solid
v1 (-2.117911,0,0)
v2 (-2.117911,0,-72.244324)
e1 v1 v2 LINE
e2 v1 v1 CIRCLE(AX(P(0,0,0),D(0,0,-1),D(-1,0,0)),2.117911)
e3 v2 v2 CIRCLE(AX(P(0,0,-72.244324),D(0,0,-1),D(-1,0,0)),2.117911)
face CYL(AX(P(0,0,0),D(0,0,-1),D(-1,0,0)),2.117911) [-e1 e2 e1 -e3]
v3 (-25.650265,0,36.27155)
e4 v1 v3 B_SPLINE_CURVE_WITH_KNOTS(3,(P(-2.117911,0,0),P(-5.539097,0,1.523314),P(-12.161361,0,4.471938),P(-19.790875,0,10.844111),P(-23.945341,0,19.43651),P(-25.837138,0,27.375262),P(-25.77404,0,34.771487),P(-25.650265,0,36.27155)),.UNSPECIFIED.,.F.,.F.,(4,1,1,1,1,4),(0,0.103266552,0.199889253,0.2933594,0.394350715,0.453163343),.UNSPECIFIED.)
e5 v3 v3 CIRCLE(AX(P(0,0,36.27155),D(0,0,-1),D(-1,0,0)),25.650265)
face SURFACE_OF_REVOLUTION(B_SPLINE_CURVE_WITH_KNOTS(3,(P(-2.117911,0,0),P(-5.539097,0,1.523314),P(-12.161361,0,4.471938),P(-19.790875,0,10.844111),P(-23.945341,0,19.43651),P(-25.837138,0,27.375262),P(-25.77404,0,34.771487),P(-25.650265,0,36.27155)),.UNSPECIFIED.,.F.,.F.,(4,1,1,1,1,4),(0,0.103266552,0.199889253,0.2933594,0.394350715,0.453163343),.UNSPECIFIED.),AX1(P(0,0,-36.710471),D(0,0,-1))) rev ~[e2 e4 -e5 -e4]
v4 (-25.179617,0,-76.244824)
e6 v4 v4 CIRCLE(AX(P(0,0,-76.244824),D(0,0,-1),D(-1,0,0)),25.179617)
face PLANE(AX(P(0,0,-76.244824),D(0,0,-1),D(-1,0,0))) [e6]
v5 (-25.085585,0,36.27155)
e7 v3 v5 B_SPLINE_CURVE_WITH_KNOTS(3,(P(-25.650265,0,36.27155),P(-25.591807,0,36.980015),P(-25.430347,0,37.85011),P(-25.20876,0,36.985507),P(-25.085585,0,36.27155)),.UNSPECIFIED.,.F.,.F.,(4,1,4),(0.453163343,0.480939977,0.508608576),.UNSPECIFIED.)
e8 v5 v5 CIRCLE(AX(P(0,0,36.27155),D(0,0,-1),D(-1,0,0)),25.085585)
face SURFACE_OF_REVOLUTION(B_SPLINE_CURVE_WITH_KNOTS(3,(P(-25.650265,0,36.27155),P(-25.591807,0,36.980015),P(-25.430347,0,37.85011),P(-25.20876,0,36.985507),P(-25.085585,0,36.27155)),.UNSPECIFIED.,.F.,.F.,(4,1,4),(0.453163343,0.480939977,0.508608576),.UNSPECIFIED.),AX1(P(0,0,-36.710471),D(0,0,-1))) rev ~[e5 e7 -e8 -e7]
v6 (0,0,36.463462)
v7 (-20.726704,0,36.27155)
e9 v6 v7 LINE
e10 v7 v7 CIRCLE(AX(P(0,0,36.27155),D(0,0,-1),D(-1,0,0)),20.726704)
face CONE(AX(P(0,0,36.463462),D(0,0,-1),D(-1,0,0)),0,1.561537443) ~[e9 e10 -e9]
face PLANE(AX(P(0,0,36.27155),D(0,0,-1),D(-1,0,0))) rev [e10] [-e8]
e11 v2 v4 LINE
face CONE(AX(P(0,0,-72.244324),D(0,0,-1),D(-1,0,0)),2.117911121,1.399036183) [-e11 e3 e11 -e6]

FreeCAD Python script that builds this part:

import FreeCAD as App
import Part
import Sketcher
from FreeCAD import Vector

doc = App.newDocument("Part")
body = doc.addObject("PartDesign::Body", "Body")

# Sketch on XZ plane
sketch1 = body.newObject("Sketcher::SketchObject", "Sketch")
sketch1.AttachmentSupport = (doc.getObject("XZ_Plane"), [""])
sketch1.MapMode = "FlatFace"
sketch1.addGeometry(Part.LineSegment(Vector(-25.179617, -76.244824, 0), Vector(0, -76.244824, 0)), False)
sketch1.addGeometry(Part.LineSegment(Vector(0, -76.244824, 0), Vector(0, 36.27155, 0)), False)
sketch1.addGeometry(Part.LineSegment(Vector(0, 36.27155, 0), Vector(-25.085585, 36.27155, 0)), False)
sketch1.addGeometry(Part.BSplineCurve([Vector(-25.650265, 36.27155, 0), Vector(-25.591807, 36.980015, 0), Vector(-25.430347, 37.85011, 0), Vector(-25.20876, 36.985507, 0), Vector(-25.085585, 36.27155, 0)], [4, 1, 4], [0.453163343, 0.480939977, 0.508608576], False, 3, [1, 1, 1, 1, 1], False), False)
sketch1.addGeometry(Part.BSplineCurve([Vector(-2.117911, 0, 0), Vector(-5.539097, 1.523314, 0), Vector(-12.161361, 4.471938, 0), Vector(-19.790875, 10.844111, 0), Vector(-23.945341, 19.43651, 0), Vector(-25.837138, 27.375262, 0), Vector(-25.77404, 34.771487, 0), Vector(-25.650265, 36.27155, 0)], [4, 1, 1, 1, 1, 4], [0, 0.103266552, 0.199889253, 0.2933594, 0.394350715, 0.453163343], False, 3, [1, 1, 1, 1, 1, 1, 1, 1], False), False)
sketch1.addGeometry(Part.LineSegment(Vector(-2.117911, 0, 0), Vector(-2.117911, -72.244324, 0)), False)
sketch1.addGeometry(Part.LineSegment(Vector(-2.117911, -72.244324, 0), Vector(-25.179617, -76.244824, 0)), False)
sketch1.addConstraint(Sketcher.Constraint("Block", 3))
sketch1.addConstraint(Sketcher.Constraint("Block", 4))
sketch1.addConstraint(Sketcher.Constraint("Coincident", 0, 2, 1, 1))
sketch1.addConstraint(Sketcher.Constraint("Coincident", 1, 2, 2, 1))
sketch1.addConstraint(Sketcher.Constraint("Coincident", 2, 2, 3, 2))
sketch1.addConstraint(Sketcher.Constraint("Coincident", 4, 1, 5, 1))
sketch1.addConstraint(Sketcher.Constraint("Coincident", 5, 2, 6, 1))
sketch1.addConstraint(Sketcher.Constraint("Coincident", 6, 2, 0, 1))
sketch1.addConstraint(Sketcher.Constraint("Horizontal", 0))
sketch1.addConstraint(Sketcher.Constraint("Vertical", 1))
sketch1.addConstraint(Sketcher.Constraint("Horizontal", 2))
sketch1.addConstraint(Sketcher.Constraint("Vertical", 5))
sketch1.addConstraint(Sketcher.Constraint("PointOnObject", 0, 2, -2))
sketch1.addConstraint(Sketcher.Constraint("DistanceY", 0, 2, 5, 2, 4.0005))
sketch1.addConstraint(Sketcher.Constraint("DistanceX", 0, 1, 0, 2, 25.179617))
sketch1.addConstraint(Sketcher.Constraint("DistanceY", 1, 1, 1, 2, 112.516374))
revolution = body.newObject("PartDesign::Revolution", "Revolution")
revolution.Profile = sketch1
revolution.ReferenceAxis = (sketch1, ["V_Axis"])
revolution.Angle = 360

# Sketch on XZ plane
sketch2 = body.newObject("Sketcher::SketchObject", "Sketch001")
sketch2.AttachmentSupport = (doc.getObject("XZ_Plane"), [""])
sketch2.MapMode = "FlatFace"
sketch2.addGeometry(Part.BSplineCurve([Vector(-25.422417, 36.228072, 0), Vector(-24.991235, 33.092298, 0), Vector(-24.059161, 26.313776, 0), Vector(-18.637634, 13.054465, 0), Vector(-9.148026, 8.115004, 0), Vector(-3.128793, 2.775481, 0), Vector(0, 0, 0)], [4, 1, 1, 1, 4], [0, 0.233692369, 0.505166798, 0.742786031, 1], False, 3, [1, 1, 1, 1, 1, 1, 1], False), False)
sketch2.addGeometry(Part.LineSegment(Vector(0, 0, 0), Vector(0, 36.463462, 0)), False)
sketch2.addGeometry(Part.LineSegment(Vector(0, 36.463462, 0), Vector(-25.422417, 36.228072, 0)), False)
sketch2.addConstraint(Sketcher.Constraint("Block", 0))
sketch2.addConstraint(Sketcher.Constraint("Coincident", 0, 2, 1, 1))
sketch2.addConstraint(Sketcher.Constraint("Coincident", 1, 2, 2, 1))
sketch2.addConstraint(Sketcher.Constraint("Coincident", 2, 2, 0, 1))
sketch2.addConstraint(Sketcher.Constraint("Vertical", 1))
sketch2.addConstraint(Sketcher.Constraint("DistanceY", 1, 1, 1, 2, 36.463462))
revolution2 = body.newObject("PartDesign::Revolution", "Revolution001")
revolution2.Profile = sketch2
revolution2.ReferenceAxis = (sketch2, ["V_Axis"])
revolution2.Angle = 360

doc.recompute()
